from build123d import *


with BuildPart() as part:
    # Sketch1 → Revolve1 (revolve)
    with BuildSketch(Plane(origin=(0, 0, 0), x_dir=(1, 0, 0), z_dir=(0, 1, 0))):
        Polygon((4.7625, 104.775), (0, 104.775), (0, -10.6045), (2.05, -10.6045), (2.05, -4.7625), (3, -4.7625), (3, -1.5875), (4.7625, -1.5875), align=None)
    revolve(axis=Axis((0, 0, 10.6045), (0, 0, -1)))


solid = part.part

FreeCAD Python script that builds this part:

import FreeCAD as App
import Part
import Sketcher

V = App.Vector
Q = App.Units.Quantity


def add_polygon(sketch, points):
    """Adds a closed chain of lines whose ends are joined by coincident constraints."""
    first, n = sketch.GeometryCount, len(points)
    for a, b in zip(points, points[1:] + points[:1]):
        sketch.addGeometry(Part.LineSegment(App.Vector(*a, 0), App.Vector(*b, 0)), False)
    for i in range(n):
        sketch.addConstraint(Sketcher.Constraint("Coincident", first + i, 2, first + (i + 1) % n, 1))

doc = App.newDocument("Part")
body = doc.addObject("PartDesign::Body", "Body")

sketch1 = doc.addObject("Sketcher::SketchObject", "Sketch")
body.addObject(sketch1)
sketch1.AttachmentSupport = (doc.XZ_Plane, [""])
sketch1.MapMode = "FlatFace"
add_polygon(sketch1, [(4.8, -104.8), (0, -104.8), (0, 10.6), (2, 10.6), (2, 4.8), (3, 4.8), (3, 1.6), (4.8, 1.6)])
sketch1.addConstraint(Sketcher.Constraint("Horizontal", 0))
sketch1.addConstraint(Sketcher.Constraint("Vertical", 1))
sketch1.addConstraint(Sketcher.Constraint("Horizontal", 2))
sketch1.addConstraint(Sketcher.Constraint("Vertical", 3))
sketch1.addConstraint(Sketcher.Constraint("Horizontal", 4))
sketch1.addConstraint(Sketcher.Constraint("Vertical", 5))
sketch1.addConstraint(Sketcher.Constraint("Horizontal", 6))
sketch1.addConstraint(Sketcher.Constraint("Vertical", 7))
sketch1.addConstraint(Sketcher.Constraint("PointOnObject", 0, 2, -2))
sketch1.addConstraint(Sketcher.Constraint("DistanceY", 3, 2, 3, 1, Q("0.23 in")))
sketch1.addConstraint(Sketcher.Constraint("DistanceX", 0, 2, 0, 1, Q("0.1875 in")))
sketch1.addConstraint(Sketcher.Constraint("DistanceY", 5, 2, 5, 1, Q("0.125 in")))
sketch1.addConstraint(Sketcher.Constraint("DistanceY", 7, 2, 7, 1, Q("4.1875 in")))
sketch1.addConstraint(Sketcher.Constraint("DistanceY", 0, 2, -1, 1, Q("4.125 in")))
sketch1.addConstraint(Sketcher.Constraint("DistanceX", 2, 1, 2, 2, Q("2.05 mm")))
sketch1.addConstraint(Sketcher.Constraint("DistanceX", 4, 1, 4, 2, Q("0.95 mm")))
revolution = doc.addObject("PartDesign::Revolution", "Revolution")
body.addObject(revolution)
revolution.Profile = sketch1
revolution.ReferenceAxis = (sketch1, ["V_Axis"])
revolution.Angle = 360

doc.recompute()
